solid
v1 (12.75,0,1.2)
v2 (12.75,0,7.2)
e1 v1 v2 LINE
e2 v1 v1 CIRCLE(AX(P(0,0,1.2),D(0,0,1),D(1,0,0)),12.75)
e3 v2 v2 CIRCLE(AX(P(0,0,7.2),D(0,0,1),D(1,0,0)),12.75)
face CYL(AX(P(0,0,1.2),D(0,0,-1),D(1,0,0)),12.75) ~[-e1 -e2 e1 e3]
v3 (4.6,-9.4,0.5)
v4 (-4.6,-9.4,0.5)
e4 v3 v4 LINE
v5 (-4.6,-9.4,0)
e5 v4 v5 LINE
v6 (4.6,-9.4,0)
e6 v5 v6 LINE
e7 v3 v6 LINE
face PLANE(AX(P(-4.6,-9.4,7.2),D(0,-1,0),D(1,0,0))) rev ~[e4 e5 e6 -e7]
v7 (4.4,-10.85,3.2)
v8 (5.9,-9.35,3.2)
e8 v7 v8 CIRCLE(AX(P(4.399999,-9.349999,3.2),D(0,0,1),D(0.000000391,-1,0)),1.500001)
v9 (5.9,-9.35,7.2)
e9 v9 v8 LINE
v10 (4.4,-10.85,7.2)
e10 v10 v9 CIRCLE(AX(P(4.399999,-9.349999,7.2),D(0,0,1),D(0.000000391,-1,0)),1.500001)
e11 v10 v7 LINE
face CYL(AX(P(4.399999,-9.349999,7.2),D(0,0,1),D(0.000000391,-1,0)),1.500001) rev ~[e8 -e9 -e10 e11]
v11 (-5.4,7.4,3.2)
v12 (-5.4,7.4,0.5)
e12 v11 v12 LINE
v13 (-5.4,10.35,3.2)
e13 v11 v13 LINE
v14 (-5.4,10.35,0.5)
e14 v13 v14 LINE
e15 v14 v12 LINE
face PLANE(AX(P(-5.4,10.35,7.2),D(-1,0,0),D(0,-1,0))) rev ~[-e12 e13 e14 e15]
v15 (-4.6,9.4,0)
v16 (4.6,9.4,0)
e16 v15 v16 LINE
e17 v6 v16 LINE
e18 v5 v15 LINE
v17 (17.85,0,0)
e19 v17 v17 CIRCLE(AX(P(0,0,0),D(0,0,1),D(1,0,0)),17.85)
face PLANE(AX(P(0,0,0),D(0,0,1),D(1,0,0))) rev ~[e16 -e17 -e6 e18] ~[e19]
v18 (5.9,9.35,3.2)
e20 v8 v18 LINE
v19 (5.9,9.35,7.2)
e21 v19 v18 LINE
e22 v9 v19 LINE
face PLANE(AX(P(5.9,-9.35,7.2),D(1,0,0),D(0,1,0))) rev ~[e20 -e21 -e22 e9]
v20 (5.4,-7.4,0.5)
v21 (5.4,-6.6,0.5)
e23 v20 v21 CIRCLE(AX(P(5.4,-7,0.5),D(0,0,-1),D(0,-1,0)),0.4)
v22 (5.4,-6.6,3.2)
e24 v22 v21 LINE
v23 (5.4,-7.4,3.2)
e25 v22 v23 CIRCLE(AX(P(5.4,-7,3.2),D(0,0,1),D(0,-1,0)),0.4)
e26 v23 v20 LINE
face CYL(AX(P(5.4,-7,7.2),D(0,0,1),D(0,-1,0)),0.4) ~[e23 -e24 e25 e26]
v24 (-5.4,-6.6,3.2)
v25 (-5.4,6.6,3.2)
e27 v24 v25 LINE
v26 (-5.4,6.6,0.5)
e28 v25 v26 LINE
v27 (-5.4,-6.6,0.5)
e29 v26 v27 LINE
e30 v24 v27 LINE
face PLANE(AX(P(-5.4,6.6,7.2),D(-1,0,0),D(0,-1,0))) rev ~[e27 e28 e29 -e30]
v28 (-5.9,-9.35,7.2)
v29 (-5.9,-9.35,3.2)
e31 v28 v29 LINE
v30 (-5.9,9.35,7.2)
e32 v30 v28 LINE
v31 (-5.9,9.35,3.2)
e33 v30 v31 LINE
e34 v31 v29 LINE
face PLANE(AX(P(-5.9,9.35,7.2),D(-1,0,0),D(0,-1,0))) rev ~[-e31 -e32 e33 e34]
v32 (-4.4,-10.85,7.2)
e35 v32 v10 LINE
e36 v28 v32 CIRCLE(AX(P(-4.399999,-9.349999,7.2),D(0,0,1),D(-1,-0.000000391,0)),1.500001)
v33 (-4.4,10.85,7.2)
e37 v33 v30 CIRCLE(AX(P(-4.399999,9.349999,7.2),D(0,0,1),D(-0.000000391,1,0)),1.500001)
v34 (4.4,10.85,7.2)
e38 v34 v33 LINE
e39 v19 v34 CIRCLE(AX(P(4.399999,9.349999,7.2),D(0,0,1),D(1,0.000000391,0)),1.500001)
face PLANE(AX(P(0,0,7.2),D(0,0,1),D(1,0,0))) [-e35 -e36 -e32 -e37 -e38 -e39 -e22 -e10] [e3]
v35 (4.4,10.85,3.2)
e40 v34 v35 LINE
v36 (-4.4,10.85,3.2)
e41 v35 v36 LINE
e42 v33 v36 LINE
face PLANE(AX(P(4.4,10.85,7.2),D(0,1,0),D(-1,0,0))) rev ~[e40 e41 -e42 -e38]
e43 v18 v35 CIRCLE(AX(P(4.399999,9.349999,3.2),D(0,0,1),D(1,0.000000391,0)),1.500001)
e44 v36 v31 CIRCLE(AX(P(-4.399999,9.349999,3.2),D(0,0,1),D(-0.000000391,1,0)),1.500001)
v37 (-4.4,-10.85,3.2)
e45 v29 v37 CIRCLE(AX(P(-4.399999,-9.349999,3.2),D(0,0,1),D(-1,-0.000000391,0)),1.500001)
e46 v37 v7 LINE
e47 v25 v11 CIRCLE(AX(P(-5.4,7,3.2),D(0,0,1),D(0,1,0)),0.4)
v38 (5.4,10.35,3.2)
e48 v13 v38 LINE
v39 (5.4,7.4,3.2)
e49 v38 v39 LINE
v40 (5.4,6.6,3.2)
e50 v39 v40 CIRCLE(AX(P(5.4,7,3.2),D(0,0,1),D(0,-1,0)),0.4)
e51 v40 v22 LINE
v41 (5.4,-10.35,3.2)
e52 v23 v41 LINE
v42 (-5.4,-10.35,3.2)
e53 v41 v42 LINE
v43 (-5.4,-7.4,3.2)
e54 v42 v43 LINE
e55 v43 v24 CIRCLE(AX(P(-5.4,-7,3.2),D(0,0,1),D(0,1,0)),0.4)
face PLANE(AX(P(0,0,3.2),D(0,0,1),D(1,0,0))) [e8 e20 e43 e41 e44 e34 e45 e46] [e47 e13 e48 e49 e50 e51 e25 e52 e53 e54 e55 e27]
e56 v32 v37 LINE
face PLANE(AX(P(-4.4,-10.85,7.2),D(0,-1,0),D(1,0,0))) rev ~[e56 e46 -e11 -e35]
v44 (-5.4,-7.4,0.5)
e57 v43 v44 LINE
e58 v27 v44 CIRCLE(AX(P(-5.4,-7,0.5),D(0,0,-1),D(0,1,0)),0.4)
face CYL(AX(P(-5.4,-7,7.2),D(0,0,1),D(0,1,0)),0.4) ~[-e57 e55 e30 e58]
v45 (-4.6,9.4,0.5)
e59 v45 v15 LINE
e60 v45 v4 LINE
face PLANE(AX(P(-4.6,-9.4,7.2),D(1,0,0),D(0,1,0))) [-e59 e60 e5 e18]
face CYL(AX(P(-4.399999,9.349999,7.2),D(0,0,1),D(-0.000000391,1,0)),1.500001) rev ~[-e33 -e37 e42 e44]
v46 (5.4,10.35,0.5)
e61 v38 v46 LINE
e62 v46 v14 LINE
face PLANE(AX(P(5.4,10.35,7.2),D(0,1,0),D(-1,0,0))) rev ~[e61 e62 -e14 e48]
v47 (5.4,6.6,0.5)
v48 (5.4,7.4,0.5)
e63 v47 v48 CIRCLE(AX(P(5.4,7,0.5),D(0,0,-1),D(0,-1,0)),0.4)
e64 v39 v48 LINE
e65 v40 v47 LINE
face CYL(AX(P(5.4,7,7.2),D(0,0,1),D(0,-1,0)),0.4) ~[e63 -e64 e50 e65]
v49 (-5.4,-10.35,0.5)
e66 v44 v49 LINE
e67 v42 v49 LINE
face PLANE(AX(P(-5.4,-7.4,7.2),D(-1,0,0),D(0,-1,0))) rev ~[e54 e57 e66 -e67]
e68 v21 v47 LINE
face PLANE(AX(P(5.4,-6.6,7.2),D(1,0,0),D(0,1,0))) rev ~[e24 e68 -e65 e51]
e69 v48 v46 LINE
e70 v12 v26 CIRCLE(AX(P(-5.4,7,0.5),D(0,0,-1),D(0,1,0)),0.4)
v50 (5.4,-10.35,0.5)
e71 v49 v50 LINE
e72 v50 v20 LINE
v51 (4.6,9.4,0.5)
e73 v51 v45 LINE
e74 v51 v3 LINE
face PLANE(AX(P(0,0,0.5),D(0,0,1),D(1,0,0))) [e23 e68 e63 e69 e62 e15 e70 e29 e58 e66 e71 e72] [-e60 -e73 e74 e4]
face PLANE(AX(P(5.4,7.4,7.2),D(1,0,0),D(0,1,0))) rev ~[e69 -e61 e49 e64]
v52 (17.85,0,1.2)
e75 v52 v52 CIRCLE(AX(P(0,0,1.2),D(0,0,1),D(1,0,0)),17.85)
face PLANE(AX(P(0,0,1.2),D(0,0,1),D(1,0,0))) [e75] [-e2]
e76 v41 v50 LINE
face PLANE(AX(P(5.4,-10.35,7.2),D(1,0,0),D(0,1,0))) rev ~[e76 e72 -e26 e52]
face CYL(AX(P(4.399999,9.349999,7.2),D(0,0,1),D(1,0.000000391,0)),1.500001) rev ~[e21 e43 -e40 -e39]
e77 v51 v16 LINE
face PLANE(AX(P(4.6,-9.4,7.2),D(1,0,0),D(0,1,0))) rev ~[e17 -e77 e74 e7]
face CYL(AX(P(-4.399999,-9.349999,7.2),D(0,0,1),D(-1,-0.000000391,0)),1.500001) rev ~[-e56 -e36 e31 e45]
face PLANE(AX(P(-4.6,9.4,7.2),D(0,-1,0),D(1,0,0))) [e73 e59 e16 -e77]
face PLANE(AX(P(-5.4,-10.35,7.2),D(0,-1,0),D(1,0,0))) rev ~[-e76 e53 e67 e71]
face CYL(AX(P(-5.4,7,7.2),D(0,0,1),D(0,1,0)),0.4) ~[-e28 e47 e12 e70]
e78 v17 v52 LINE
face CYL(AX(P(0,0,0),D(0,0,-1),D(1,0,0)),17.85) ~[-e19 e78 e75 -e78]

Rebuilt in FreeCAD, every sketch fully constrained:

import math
import FreeCAD as App
import Part
import Sketcher
from FreeCAD import Vector


def add_polygon(sketch, points):
    """Adds a closed chain of lines whose ends are joined by coincident constraints."""
    first, n = sketch.GeometryCount, len(points)
    for a, b in zip(points, points[1:] + points[:1]):
        sketch.addGeometry(Part.LineSegment(App.Vector(*a, 0), App.Vector(*b, 0)), False)
    for i in range(n):
        sketch.addConstraint(Sketcher.Constraint("Coincident", first + i, 2, first + (i + 1) % n, 1))

doc = App.newDocument("Part")
body = doc.addObject("PartDesign::Body", "Body")

# Sketch on XY plane
sketch1 = body.newObject("Sketcher::SketchObject", "Sketch")
sketch1.AttachmentSupport = (doc.getObject("XY_Plane"), [""])
sketch1.MapMode = "FlatFace"
sketch1.addGeometry(Part.Circle(Vector(0, 0, 0), Vector(0, 0, 1), 18), False)
sketch1.addConstraint([
    Sketcher.Constraint("Coincident", 0, 3, -1, 1),
    Sketcher.Constraint("Diameter", 0, 35.7),
])
pad1 = body.newObject("PartDesign::Pad", "Pad")
pad1.Profile = sketch1
pad1.Length = 1.2

# Sketch on XY plane
sketch2 = body.newObject("Sketcher::SketchObject", "Sketch001")
sketch2.AttachmentSupport = (doc.getObject("XY_Plane"), [""])
sketch2.MapMode = "FlatFace"
sketch2.AttachmentOffset = App.Placement(Vector(0, 0, 1.2), App.Rotation())
sketch2.addGeometry(Part.Circle(Vector(0, 0, 0), Vector(0, 0, 1), 13), False)
sketch2.addConstraint([
    Sketcher.Constraint("Coincident", 0, 3, -1, 1),
    Sketcher.Constraint("Diameter", 0, 25.5),
])
pad2 = body.newObject("PartDesign::Pad", "Pad001")
pad2.Profile = sketch2
pad2.Length = 6

# Sketch on XY plane
sketch3 = body.newObject("Sketcher::SketchObject", "Sketch002")
sketch3.AttachmentSupport = (doc.getObject("XY_Plane"), [""])
sketch3.MapMode = "FlatFace"
sketch3.AttachmentOffset = App.Placement(Vector(0, 0, 7.2), App.Rotation())
add_polygon(sketch3, [(-5, 9), (-5, -9), (5, -9), (5, 9)])  # lines 0-3
sketch3.addConstraint([
    Sketcher.Constraint("Vertical", 0),
    Sketcher.Constraint("Horizontal", 1),
    Sketcher.Constraint("Vertical", 2),
    Sketcher.Constraint("Horizontal", 3),
    Sketcher.Constraint("Symmetric", 0, 2, 2, 2, -1, 1),
    Sketcher.Constraint("DistanceX", 1, 1, 1, 2, 9.2),
    Sketcher.Constraint("DistanceY", 0, 2, 0, 1, 18.8),
])
pocket1 = body.newObject("PartDesign::Pocket", "Pocket")
pocket1.Profile = sketch3
pocket1.Type = "ThroughAll"

# Sketch on XY plane
sketch4 = body.newObject("Sketcher::SketchObject", "Sketch003")
sketch4.AttachmentSupport = (doc.getObject("XY_Plane"), [""])
sketch4.MapMode = "FlatFace"
sketch4.AttachmentOffset = App.Placement(Vector(0, 0, 7.2), App.Rotation())
sketch4.addGeometry([
    Part.LineSegment(Vector(5.4, 10.35, 0), Vector(-5.4, 10.35, 0)),  # 0
    Part.LineSegment(Vector(-5.4, 10.35, 0), Vector(-5.4, 7.4, 0)),  # 1
    Part.ArcOfCircle(Part.Circle(Vector(-5.4, 7, 0), Vector(0, 0, 1), 0.4), math.radians(-90), math.radians(90)),  # 2
    Part.LineSegment(Vector(-5.4, 6.6, 0), Vector(-5.4, -6.6, 0)),  # 3
    Part.ArcOfCircle(Part.Circle(Vector(-5.4, -7, 0), Vector(0, 0, 1), 0.4), math.radians(-90), math.radians(90)),  # 4
    Part.LineSegment(Vector(-5.4, -7.4, 0), Vector(-5.4, -10.35, 0)),  # 5
    Part.LineSegment(Vector(-5.4, -10.35, 0), Vector(5.4, -10.35, 0)),  # 6
    Part.LineSegment(Vector(5.4, -10.35, 0), Vector(5.4, -7.4, 0)),  # 7
    Part.ArcOfCircle(Part.Circle(Vector(5.4, -7, 0), Vector(0, 0, 1), 0.4), math.radians(90), math.radians(270)),  # 8
    Part.LineSegment(Vector(5.4, -6.6, 0), Vector(5.4, 6.6, 0)),  # 9
    Part.ArcOfCircle(Part.Circle(Vector(5.4, 7, 0), Vector(0, 0, 1), 0.4), math.radians(90), math.radians(270)),  # 10
    Part.LineSegment(Vector(5.4, 7.4, 0), Vector(5.4, 10.35, 0)),  # 11
], False)
sketch4.addConstraint([
    Sketcher.Constraint("Coincident", 0, 2, 1, 1),
    Sketcher.Constraint("Coincident", 1, 2, 2, 2),
    Sketcher.Constraint("Coincident", 2, 1, 3, 1),
    Sketcher.Constraint("Coincident", 3, 2, 4, 2),
    Sketcher.Constraint("Coincident", 4, 1, 5, 1),
    Sketcher.Constraint("Coincident", 5, 2, 6, 1),
    Sketcher.Constraint("Coincident", 6, 2, 7, 1),
    Sketcher.Constraint("Coincident", 7, 2, 8, 2),
    Sketcher.Constraint("Coincident", 8, 1, 9, 1),
    Sketcher.Constraint("Coincident", 9, 2, 10, 2),
    Sketcher.Constraint("Coincident", 10, 1, 11, 1),
    Sketcher.Constraint("Coincident", 11, 2, 0, 1),
    Sketcher.Constraint("Horizontal", 0),
    Sketcher.Constraint("Vertical", 1),
    Sketcher.Constraint("Vertical", 3),
    Sketcher.Constraint("Vertical", 5),
    Sketcher.Constraint("Horizontal", 6),
    Sketcher.Constraint("Vertical", 7),
    Sketcher.Constraint("Vertical", 9),
    Sketcher.Constraint("Vertical", 11),
    Sketcher.Constraint("Equal", 2, 4),
    Sketcher.Constraint("Equal", 4, 8),
    Sketcher.Constraint("Equal", 8, 10),
    Sketcher.Constraint("Symmetric", 2, 3, 8, 3, -1, 1),
    Sketcher.Constraint("Symmetric", 4, 3, 10, 3, -1, 1),
    Sketcher.Constraint("Symmetric", 0, 2, 6, 2, -1, 1),
    Sketcher.Constraint("Symmetric", 4, 3, 8, 3, -2),
    Sketcher.Constraint("Vertical", 4, 3, 0, 2),
    Sketcher.Constraint("Vertical", 1, 2, 2, 1),
    Sketcher.Constraint("Vertical", 3, 2, 4, 1),
    Sketcher.Constraint("Vertical", 7, 2, 8, 1),
    Sketcher.Constraint("Vertical", 9, 2, 10, 1),
    Sketcher.Constraint("Radius", 2, 0.4),
    Sketcher.Constraint("DistanceX", 0, 2, 0, 1, 10.8),
    Sketcher.Constraint("DistanceY", 3, 2, 3, 1, 13.2),
    Sketcher.Constraint("DistanceY", 1, 2, 1, 1, 2.95),
])
pocket2 = body.newObject("PartDesign::Pocket", "Pocket001")
pocket2.Profile = sketch4
pocket2.Length = 6.7

# Sketch on XY plane
sketch5 = body.newObject("Sketcher::SketchObject", "Sketch004")
sketch5.AttachmentSupport = (doc.getObject("XY_Plane"), [""])
sketch5.MapMode = "FlatFace"
sketch5.AttachmentOffset = App.Placement(Vector(0, 0, 7.2), App.Rotation())
sketch5.addGeometry([
    Part.LineSegment(Vector(4.4, 10.8, 0), Vector(-4.4, 10.8, 0)),  # 0
    Part.ArcOfCircle(Part.Circle(Vector(-4.4, 9.3, 0), Vector(0, 0, 1), 1.5), math.radians(90), math.radians(180)),  # 1
    Part.LineSegment(Vector(-5.9, 9.3, 0), Vector(-5.9, -9.3, 0)),  # 2
    Part.ArcOfCircle(Part.Circle(Vector(-4.4, -9.3, 0), Vector(0, 0, 1), 1.5), math.radians(-180), math.radians(-90)),  # 3
    Part.LineSegment(Vector(-4.4, -10.8, 0), Vector(4.4, -10.8, 0)),  # 4
    Part.ArcOfCircle(Part.Circle(Vector(4.4, -9.3, 0), Vector(0, 0, 1), 1.5), math.radians(-90), math.radians(0)),  # 5
    Part.LineSegment(Vector(5.9, -9.3, 0), Vector(5.9, 9.3, 0)),  # 6
    Part.ArcOfCircle(Part.Circle(Vector(4.4, 9.3, 0), Vector(0, 0, 1), 1.5), math.radians(0), math.radians(90)),  # 7
], False)
sketch5.addConstraint([
    Sketcher.Constraint("Tangent", 0, 2, 1, 1),
    Sketcher.Constraint("Tangent", 1, 2, 2, 1),
    Sketcher.Constraint("Tangent", 2, 2, 3, 1),
    Sketcher.Constraint("Tangent", 3, 2, 4, 1),
    Sketcher.Constraint("Tangent", 4, 2, 5, 1),
    Sketcher.Constraint("Tangent", 5, 2, 6, 1),
    Sketcher.Constraint("Tangent", 6, 2, 7, 1),
    Sketcher.Constraint("Tangent", 7, 2, 0, 1),
    Sketcher.Constraint("Horizontal", 0),
    Sketcher.Constraint("Vertical", 2),
    Sketcher.Constraint("Horizontal", 4),
    Sketcher.Constraint("Vertical", 6),
    Sketcher.Constraint("Equal", 1, 3),
    Sketcher.Constraint("Equal", 3, 5),
    Sketcher.Constraint("Equal", 5, 7),
    Sketcher.Constraint("Symmetric", 1, 3, 5, 3, -1, 1),
    Sketcher.Constraint("Radius", 1, 1.500001),
    Sketcher.Constraint("DistanceX", 0, 2, 0, 1, 8.8),
    Sketcher.Constraint("DistanceY", 2, 2, 2, 1, 18.7),
])
pocket3 = body.newObject("PartDesign::Pocket", "Pocket002")
pocket3.Profile = sketch5
pocket3.Length = 4

doc.recompute()
